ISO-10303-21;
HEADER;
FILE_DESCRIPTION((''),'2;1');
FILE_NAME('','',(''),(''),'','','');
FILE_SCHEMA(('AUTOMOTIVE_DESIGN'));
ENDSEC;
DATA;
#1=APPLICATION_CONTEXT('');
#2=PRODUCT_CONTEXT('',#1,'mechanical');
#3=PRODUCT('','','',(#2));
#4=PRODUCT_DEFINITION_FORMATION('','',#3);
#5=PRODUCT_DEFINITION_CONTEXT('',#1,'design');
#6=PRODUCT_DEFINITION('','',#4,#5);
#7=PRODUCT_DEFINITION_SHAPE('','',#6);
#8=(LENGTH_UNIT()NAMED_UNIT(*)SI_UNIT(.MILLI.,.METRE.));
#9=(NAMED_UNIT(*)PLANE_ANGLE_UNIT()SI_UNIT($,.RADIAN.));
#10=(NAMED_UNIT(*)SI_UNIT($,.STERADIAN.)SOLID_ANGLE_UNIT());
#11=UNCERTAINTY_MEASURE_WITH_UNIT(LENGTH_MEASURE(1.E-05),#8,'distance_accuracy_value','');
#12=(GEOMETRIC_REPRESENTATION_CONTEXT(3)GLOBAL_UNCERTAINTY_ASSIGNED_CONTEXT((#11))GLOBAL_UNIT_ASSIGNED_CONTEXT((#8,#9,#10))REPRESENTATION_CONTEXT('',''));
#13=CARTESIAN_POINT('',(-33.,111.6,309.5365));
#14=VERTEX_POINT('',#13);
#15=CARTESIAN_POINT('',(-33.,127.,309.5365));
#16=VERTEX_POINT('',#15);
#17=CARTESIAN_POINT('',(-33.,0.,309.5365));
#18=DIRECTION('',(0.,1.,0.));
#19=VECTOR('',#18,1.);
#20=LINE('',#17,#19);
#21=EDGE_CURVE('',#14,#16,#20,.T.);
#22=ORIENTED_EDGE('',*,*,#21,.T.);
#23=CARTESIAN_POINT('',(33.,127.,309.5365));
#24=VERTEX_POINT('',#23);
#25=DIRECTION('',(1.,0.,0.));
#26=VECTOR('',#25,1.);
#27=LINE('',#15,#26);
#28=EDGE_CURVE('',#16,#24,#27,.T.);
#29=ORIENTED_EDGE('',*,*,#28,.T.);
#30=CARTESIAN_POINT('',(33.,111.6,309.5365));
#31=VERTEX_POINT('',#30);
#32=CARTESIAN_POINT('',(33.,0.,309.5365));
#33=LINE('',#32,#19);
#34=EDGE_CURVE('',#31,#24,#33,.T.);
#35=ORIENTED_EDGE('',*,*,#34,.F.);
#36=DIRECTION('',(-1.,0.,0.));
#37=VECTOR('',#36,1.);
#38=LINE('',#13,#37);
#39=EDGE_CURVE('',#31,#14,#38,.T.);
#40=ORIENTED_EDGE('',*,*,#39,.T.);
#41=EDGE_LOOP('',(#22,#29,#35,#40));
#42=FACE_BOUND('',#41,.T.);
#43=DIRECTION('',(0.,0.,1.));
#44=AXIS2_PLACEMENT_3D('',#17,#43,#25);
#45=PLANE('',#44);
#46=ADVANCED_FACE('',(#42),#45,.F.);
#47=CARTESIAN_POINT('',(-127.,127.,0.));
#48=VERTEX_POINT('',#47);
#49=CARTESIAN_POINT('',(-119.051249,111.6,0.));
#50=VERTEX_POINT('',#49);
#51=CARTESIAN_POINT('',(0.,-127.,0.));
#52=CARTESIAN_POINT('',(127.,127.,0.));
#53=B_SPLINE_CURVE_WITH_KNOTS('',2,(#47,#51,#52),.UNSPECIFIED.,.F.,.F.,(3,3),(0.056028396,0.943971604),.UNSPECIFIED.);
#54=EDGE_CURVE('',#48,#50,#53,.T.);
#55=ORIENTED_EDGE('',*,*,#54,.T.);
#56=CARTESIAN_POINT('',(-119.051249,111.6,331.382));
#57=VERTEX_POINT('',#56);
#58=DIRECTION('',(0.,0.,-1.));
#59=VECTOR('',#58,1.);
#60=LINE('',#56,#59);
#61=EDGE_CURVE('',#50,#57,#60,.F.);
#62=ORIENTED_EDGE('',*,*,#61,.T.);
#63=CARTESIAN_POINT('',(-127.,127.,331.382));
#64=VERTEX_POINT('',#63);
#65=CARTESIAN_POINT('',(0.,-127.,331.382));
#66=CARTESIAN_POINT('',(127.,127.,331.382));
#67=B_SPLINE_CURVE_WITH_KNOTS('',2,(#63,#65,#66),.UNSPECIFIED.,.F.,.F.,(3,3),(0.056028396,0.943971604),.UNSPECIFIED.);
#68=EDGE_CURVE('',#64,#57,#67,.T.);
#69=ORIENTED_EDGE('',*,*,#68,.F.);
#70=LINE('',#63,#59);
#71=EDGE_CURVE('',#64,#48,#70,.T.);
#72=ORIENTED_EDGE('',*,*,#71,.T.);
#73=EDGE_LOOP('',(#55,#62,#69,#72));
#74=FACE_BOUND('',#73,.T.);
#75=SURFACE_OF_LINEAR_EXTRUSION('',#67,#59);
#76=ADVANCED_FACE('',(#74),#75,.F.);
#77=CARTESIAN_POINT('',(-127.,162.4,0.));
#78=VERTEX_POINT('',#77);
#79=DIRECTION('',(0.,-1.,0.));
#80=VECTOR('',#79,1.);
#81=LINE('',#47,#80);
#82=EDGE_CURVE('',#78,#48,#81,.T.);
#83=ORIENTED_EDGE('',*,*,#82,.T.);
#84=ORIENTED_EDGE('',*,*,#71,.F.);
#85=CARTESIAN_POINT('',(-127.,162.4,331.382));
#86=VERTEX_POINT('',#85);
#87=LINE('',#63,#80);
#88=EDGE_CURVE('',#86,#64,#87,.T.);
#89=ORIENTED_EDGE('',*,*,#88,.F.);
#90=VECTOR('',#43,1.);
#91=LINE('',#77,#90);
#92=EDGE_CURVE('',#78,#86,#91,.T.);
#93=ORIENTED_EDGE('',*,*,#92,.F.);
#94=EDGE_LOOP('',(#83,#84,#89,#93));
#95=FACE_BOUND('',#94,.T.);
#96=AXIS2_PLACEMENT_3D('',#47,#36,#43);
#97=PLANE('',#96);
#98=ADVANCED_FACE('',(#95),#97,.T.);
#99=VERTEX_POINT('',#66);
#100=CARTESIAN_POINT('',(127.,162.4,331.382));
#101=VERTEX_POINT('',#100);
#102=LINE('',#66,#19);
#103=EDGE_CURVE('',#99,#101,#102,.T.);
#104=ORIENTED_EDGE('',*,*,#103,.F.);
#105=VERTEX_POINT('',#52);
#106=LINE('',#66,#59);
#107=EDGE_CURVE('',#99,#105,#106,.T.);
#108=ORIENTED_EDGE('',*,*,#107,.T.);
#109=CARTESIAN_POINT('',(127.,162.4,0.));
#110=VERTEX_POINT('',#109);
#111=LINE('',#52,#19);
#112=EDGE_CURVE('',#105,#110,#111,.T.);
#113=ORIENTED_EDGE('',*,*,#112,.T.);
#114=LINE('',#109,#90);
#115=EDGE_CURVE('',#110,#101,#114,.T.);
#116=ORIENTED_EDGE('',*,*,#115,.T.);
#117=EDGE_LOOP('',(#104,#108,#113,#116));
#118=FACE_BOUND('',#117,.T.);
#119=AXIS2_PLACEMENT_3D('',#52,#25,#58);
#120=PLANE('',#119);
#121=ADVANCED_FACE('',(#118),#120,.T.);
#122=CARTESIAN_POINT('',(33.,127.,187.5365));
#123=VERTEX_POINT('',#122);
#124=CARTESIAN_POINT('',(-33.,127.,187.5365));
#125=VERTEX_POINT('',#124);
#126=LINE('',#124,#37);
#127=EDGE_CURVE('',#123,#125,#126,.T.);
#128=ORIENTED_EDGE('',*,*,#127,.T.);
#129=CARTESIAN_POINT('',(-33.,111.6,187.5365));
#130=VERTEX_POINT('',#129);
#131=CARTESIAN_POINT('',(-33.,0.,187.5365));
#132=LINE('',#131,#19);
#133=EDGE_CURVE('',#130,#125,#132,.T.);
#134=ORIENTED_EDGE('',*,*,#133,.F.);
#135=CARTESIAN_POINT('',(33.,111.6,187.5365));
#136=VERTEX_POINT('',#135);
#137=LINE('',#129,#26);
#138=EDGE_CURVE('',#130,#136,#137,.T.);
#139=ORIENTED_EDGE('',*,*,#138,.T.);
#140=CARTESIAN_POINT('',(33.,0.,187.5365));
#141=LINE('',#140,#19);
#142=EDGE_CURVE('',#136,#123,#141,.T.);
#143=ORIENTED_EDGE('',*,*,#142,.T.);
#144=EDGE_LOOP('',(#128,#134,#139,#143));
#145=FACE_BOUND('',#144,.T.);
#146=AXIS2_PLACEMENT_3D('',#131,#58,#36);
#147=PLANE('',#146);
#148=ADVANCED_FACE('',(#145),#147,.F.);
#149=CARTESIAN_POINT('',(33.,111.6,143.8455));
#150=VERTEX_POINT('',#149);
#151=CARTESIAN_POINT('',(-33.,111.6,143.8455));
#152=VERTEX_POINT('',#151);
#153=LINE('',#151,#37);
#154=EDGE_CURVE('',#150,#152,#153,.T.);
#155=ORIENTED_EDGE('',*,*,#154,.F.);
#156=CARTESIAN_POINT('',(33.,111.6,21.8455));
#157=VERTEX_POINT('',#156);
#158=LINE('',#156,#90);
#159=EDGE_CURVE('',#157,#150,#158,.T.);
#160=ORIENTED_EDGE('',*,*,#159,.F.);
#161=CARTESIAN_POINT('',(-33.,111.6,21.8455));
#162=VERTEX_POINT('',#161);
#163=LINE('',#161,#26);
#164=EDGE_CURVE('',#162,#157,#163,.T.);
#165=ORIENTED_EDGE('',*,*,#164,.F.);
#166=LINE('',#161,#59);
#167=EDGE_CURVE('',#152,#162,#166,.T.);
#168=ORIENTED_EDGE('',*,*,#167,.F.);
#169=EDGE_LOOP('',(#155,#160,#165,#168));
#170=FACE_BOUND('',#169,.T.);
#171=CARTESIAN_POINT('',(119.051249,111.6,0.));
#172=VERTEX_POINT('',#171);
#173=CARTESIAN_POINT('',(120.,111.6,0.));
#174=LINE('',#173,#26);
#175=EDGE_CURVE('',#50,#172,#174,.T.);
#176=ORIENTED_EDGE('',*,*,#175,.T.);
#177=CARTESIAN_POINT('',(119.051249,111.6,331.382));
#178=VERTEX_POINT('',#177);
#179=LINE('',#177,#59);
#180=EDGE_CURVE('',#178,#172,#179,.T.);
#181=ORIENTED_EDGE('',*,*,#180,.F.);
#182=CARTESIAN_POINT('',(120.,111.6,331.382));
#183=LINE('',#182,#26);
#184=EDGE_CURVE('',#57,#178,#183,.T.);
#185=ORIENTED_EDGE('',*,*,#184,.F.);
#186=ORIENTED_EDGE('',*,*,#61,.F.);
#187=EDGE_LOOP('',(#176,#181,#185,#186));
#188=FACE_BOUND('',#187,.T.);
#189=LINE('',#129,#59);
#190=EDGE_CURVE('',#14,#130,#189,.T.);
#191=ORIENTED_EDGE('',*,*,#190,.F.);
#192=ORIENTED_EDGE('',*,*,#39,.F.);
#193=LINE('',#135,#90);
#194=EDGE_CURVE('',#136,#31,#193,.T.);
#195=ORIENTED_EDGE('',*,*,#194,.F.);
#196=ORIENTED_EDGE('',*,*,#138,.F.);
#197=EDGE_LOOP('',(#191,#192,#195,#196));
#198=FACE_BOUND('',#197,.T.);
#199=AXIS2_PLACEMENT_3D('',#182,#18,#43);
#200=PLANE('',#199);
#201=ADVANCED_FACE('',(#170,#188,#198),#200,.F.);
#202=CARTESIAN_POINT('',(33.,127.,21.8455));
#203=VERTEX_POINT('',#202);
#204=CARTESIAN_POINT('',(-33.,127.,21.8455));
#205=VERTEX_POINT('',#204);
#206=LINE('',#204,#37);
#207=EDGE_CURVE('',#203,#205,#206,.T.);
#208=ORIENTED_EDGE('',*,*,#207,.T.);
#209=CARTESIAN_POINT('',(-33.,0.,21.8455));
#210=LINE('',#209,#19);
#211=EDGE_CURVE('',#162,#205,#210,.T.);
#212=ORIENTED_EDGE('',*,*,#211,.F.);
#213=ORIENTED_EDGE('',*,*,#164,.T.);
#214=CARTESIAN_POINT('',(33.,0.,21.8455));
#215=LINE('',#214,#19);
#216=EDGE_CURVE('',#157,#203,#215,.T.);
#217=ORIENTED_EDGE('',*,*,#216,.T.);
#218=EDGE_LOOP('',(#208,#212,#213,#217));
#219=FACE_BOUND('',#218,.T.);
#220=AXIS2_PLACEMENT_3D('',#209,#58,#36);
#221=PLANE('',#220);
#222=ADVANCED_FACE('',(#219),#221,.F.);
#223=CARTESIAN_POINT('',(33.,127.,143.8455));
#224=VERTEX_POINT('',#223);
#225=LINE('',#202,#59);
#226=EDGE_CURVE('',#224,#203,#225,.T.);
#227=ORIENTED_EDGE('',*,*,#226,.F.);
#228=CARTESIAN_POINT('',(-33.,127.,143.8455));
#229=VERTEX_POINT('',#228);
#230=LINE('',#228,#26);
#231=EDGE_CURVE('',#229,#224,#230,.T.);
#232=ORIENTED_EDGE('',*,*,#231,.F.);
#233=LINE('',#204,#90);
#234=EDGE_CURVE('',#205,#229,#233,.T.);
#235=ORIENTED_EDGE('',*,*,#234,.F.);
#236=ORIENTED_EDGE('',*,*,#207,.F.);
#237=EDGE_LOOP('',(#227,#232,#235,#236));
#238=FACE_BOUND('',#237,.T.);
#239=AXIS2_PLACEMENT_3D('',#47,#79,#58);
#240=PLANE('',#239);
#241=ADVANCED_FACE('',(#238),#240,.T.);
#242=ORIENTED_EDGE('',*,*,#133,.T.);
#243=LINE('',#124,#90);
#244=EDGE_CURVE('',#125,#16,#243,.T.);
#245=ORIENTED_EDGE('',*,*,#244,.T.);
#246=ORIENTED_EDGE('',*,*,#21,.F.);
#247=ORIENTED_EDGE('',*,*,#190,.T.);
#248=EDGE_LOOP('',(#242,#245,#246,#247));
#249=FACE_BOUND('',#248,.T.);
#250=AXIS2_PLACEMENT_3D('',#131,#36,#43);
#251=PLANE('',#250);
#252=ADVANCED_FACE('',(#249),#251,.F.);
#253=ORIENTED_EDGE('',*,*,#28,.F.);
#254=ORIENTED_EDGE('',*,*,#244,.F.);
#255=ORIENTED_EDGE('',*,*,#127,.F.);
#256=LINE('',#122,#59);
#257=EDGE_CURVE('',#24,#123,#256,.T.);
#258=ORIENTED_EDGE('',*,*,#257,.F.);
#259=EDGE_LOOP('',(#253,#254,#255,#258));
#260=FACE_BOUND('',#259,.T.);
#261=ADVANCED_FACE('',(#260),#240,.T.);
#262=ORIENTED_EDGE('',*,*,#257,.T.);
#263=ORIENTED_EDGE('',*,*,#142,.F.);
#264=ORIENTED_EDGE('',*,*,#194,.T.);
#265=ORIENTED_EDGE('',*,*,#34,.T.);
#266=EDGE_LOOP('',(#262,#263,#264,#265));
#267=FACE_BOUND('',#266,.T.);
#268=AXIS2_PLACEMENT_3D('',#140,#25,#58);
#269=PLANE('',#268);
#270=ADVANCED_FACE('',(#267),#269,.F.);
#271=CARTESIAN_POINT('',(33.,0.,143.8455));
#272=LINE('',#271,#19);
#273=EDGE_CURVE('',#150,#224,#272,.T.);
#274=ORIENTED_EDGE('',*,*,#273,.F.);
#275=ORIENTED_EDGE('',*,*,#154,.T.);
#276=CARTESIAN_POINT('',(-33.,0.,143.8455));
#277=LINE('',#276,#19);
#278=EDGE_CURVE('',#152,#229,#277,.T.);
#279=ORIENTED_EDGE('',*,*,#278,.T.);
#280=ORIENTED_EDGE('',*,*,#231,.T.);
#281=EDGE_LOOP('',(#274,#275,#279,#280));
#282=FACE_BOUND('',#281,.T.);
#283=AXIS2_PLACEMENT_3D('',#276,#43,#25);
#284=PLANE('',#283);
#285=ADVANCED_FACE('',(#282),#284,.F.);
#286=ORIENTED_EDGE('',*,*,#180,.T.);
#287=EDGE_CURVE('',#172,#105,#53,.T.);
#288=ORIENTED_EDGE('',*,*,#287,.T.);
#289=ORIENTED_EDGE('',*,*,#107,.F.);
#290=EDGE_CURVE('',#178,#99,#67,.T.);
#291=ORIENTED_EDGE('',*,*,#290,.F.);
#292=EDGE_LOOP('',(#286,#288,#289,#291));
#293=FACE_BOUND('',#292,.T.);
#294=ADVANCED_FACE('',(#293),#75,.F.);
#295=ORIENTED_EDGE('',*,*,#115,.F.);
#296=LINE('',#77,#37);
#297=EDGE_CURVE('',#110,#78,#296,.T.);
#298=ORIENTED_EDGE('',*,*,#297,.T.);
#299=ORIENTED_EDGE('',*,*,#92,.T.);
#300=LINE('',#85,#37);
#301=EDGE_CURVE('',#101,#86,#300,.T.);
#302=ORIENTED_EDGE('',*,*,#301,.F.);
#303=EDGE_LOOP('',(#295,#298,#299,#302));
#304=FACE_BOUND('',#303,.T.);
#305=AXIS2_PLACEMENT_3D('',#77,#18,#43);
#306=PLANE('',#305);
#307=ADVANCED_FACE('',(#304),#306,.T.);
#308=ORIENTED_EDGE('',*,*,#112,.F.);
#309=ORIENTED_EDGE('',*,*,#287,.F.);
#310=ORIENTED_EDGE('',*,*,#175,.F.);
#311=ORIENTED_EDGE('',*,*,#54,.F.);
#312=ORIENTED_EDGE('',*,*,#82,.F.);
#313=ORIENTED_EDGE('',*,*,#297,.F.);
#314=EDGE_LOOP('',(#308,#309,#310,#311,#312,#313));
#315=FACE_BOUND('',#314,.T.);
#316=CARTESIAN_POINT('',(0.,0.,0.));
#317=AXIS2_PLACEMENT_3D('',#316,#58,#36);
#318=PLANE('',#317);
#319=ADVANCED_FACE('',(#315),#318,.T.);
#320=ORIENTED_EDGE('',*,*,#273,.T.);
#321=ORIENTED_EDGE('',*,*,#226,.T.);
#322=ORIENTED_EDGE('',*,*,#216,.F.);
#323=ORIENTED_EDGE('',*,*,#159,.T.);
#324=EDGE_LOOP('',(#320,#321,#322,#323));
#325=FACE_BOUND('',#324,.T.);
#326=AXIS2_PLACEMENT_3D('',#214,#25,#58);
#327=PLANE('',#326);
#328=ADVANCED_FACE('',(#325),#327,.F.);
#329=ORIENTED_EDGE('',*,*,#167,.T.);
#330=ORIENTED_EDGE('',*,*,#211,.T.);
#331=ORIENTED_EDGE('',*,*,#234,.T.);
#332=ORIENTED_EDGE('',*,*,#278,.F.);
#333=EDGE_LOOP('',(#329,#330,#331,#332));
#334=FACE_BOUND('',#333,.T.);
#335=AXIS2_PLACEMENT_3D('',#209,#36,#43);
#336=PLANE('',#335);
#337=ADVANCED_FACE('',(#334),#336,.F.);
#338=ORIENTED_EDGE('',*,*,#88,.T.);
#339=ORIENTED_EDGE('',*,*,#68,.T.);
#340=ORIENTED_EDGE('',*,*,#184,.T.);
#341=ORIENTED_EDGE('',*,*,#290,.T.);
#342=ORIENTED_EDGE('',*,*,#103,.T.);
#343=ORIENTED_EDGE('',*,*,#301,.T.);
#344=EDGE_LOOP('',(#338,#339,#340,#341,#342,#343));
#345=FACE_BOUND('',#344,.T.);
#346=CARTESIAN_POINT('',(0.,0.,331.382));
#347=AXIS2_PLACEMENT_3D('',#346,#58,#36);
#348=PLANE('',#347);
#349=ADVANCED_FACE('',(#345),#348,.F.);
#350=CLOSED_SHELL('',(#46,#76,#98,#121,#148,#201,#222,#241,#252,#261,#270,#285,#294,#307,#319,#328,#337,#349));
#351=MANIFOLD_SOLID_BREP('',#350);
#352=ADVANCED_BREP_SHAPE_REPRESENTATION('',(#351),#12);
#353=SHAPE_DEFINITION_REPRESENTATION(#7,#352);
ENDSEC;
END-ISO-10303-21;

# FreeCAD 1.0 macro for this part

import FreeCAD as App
import Part
import Sketcher
from FreeCAD import Vector
Q = App.Units.Quantity

doc = App.newDocument("Part")
body = doc.addObject("PartDesign::Body", "Body")

# Sketch on XY plane
sketch1 = body.newObject("Sketcher::SketchObject", "Sketch")
sketch1.AttachmentSupport = (doc.getObject("XY_Plane"), [""])
sketch1.MapMode = "FlatFace"
sketch1.addGeometry([
    Part.LineSegment(Vector(127, 127, 0), Vector(-127, 127, 0)),
    Part.BSplineCurve([Vector(-127, 127, 0), Vector(0, -127, 0), Vector(127, 127, 0)], [3, 3], [0.056028396, 0.943971604], False, 2, [1, 1, 1], False),
], False)
sketch1.addConstraint([
    Sketcher.Constraint("Block", 1),
    Sketcher.Constraint("Coincident", 0, 1, 1, 2),
    Sketcher.Constraint("Coincident", 1, 1, 0, 2),
])
pad1 = body.newObject("PartDesign::Pad", "Pad")
pad1.Profile = sketch1
pad1.Length = 331.382

# Sketch on XZ plane
sketch2 = body.newObject("Sketcher::SketchObject", "Sketch001")
sketch2.AttachmentSupport = (doc.getObject("XZ_Plane"), [""])
sketch2.MapMode = "FlatFace"
sketch2.AttachmentOffset = App.Placement(Vector(0, 0, -127), App.Rotation())
sketch2.addGeometry([
    Part.LineSegment(Vector(-33, 22, 0), Vector(-33, 144, 0)),  # 0
    Part.LineSegment(Vector(-33, 144, 0), Vector(33, 144, 0)),  # 1
    Part.LineSegment(Vector(33, 144, 0), Vector(33, 22, 0)),  # 2
    Part.LineSegment(Vector(33, 22, 0), Vector(-33, 22, 0)),  # 3
    Part.LineSegment(Vector(-33, 188, 0), Vector(-33, 310, 0)),  # 4
    Part.LineSegment(Vector(-33, 310, 0), Vector(33, 310, 0)),  # 5
    Part.LineSegment(Vector(33, 310, 0), Vector(33, 188, 0)),  # 6
    Part.LineSegment(Vector(33, 188, 0), Vector(-33, 188, 0)),  # 7
], False)
sketch2.addConstraint([
    Sketcher.Constraint("Coincident", 0, 2, 1, 1),
    Sketcher.Constraint("Coincident", 1, 2, 2, 1),
    Sketcher.Constraint("Coincident", 2, 2, 3, 1),
    Sketcher.Constraint("Coincident", 3, 2, 0, 1),
    Sketcher.Constraint("Coincident", 4, 2, 5, 1),
    Sketcher.Constraint("Coincident", 5, 2, 6, 1),
    Sketcher.Constraint("Coincident", 6, 2, 7, 1),
    Sketcher.Constraint("Coincident", 7, 2, 4, 1),
    Sketcher.Constraint("Vertical", 0),
    Sketcher.Constraint("Horizontal", 1),
    Sketcher.Constraint("Vertical", 2),
    Sketcher.Constraint("Horizontal", 3),
    Sketcher.Constraint("Vertical", 4),
    Sketcher.Constraint("Horizontal", 5),
    Sketcher.Constraint("Vertical", 6),
    Sketcher.Constraint("Horizontal", 7),
    Sketcher.Constraint("Vertical", 3, 2, 4, 2),
    Sketcher.Constraint("Vertical", 2, 2, 5, 2),
    Sketcher.Constraint("Equal", 2, 4),
    Sketcher.Constraint("DistanceX", 1, 1, 1, 2, Q("66 mm")),
    Sketcher.Constraint("DistanceY", 0, 1, 0, 2, Q("122 mm")),
    Sketcher.Constraint("DistanceX", 0, 2, -1, 1, Q("33 mm")),
    Sketcher.Constraint("DistanceY", 0, 2, 4, 2, Q("165.691 mm")),
    Sketcher.Constraint("DistanceY", -1, 1, 0, 2, Q("143.8455 mm")),
])
pocket1 = body.newObject("PartDesign::Pocket", "Pocket")
pocket1.Profile = sketch2
pocket1.Type = "ThroughAll"
pocket1.Reversed = True

# Sketch on XY plane
sketch3 = body.newObject("Sketcher::SketchObject", "Sketch002")
sketch3.AttachmentSupport = (doc.getObject("XY_Plane"), [""])
sketch3.MapMode = "FlatFace"
sketch3.addGeometry([
    Part.LineSegment(Vector(120, 112, 0), Vector(120, 0, 0)),
    Part.LineSegment(Vector(120, 0, 0), Vector(-120, 0, 0)),
    Part.LineSegment(Vector(-120, 0, 0), Vector(-120, 112, 0)),
    Part.LineSegment(Vector(-120, 112, 0), Vector(120, 112, 0)),
], False)
sketch3.addConstraint([
    Sketcher.Constraint("Coincident", 0, 2, 1, 1),
    Sketcher.Constraint("Coincident", 1, 2, 2, 1),
    Sketcher.Constraint("Coincident", 2, 2, 3, 1),
    Sketcher.Constraint("Coincident", 3, 2, 0, 1),
    Sketcher.Constraint("Vertical", 0),
    Sketcher.Constraint("Horizontal", 1),
    Sketcher.Constraint("Vertical", 2),
    Sketcher.Constraint("Horizontal", 3),
    Sketcher.Constraint("Symmetric", 0, 2, 1, 2, -1, 1),
    Sketcher.Constraint("DistanceX", 1, 2, 1, 1, Q("240 mm")),
    Sketcher.Constraint("DistanceY", 0, 2, 0, 1, Q("111.6 mm")),
])
pocket2 = body.newObject("PartDesign::Pocket", "Pocket001")
pocket2.Profile = sketch3
pocket2.Type = "ThroughAll"
pocket2.Reversed = True

# Sketch on XY plane
sketch4 = body.newObject("Sketcher::SketchObject", "Sketch003")
sketch4.AttachmentSupport = (doc.getObject("XY_Plane"), [""])
sketch4.MapMode = "FlatFace"
sketch4.AttachmentOffset = App.Placement(Vector(0, 0, 331.382), App.Rotation())
sketch4.addGeometry([
    Part.LineSegment(Vector(-127, 162, 0), Vector(-127, 127, 0)),
    Part.LineSegment(Vector(-127, 127, 0), Vector(127, 127, 0)),
    Part.LineSegment(Vector(127, 127, 0), Vector(127, 162, 0)),
    Part.LineSegment(Vector(127, 162, 0), Vector(-127, 162, 0)),
], False)
sketch4.addConstraint([
    Sketcher.Constraint("Coincident", 0, 2, 1, 1),
    Sketcher.Constraint("Coincident", 1, 2, 2, 1),
    Sketcher.Constraint("Coincident", 2, 2, 3, 1),
    Sketcher.Constraint("Coincident", 3, 2, 0, 1),
    Sketcher.Constraint("Vertical", 0),
    Sketcher.Constraint("Horizontal", 1),
    Sketcher.Constraint("Vertical", 2),
    Sketcher.Constraint("Horizontal", 3),
    Sketcher.Constraint("DistanceX", 1, 1, 1, 2, Q("254 mm")),
    Sketcher.Constraint("DistanceY", 0, 2, 0, 1, Q("35.4 mm")),
    Sketcher.Constraint("DistanceX", 0, 2, -1, 1, Q("127 mm")),
    Sketcher.Constraint("DistanceY", -1, 1, 0, 2, Q("127 mm")),
])
pad2 = body.newObject("PartDesign::Pad", "Pad001")
pad2.Profile = sketch4
pad2.Length = 331.382
pad2.Reversed = True

doc.recompute()
